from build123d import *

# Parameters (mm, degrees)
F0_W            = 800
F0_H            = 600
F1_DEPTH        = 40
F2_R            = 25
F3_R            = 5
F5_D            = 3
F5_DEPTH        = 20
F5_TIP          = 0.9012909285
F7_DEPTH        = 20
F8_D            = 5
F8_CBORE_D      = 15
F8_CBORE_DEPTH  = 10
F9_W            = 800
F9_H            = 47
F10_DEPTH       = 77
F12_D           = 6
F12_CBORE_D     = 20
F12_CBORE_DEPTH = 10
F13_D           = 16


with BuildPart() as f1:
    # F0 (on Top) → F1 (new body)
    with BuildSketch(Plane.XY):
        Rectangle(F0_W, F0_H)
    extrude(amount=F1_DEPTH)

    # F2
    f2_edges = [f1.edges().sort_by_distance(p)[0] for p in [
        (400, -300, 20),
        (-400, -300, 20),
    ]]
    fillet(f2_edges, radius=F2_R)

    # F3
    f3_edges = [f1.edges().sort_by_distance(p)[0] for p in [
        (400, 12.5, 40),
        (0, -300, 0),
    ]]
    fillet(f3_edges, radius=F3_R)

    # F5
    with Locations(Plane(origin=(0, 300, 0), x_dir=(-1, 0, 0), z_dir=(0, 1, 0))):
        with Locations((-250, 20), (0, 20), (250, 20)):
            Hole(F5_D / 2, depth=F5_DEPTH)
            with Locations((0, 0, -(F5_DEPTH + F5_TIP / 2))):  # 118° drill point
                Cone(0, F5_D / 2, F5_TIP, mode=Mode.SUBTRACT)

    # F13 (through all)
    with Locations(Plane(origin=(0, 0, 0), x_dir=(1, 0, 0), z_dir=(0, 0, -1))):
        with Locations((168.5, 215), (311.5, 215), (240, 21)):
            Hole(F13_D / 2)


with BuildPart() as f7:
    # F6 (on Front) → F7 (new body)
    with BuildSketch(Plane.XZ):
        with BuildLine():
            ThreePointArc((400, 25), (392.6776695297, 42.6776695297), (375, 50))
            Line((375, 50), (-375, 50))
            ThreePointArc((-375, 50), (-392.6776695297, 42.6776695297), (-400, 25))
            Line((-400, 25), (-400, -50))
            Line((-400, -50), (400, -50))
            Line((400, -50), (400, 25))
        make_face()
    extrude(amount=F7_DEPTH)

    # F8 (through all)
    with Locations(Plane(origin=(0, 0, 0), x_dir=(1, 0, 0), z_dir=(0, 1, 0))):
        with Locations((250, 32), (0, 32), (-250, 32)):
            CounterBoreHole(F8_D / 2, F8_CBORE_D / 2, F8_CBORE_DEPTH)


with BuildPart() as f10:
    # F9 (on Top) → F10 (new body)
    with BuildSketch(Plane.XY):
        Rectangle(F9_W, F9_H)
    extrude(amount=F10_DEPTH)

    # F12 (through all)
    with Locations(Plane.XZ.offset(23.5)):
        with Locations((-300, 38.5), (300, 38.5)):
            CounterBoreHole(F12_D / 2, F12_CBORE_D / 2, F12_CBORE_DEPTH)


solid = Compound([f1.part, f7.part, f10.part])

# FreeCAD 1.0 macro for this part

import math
import FreeCAD as App
import Part
import Sketcher


def edges_at(feature, points):
    """Names of the edges that pass closest to the given points."""
    edges = feature.Shape.Edges
    near = lambda p: min(range(len(edges)), key=lambda i: edges[i].distToShape(Part.Vertex(*p))[0])
    return sorted({f"Edge{near(p) + 1}" for p in points})


def add_polygon(sketch, points):
    """Adds a closed chain of lines whose ends are joined by coincident constraints."""
    first, n = sketch.GeometryCount, len(points)
    for a, b in zip(points, points[1:] + points[:1]):
        sketch.addGeometry(Part.LineSegment(App.Vector(*a, 0), App.Vector(*b, 0)), False)
    for i in range(n):
        sketch.addConstraint(Sketcher.Constraint("Coincident", first + i, 2, first + (i + 1) % n, 1))

doc = App.newDocument("Part")
params = doc.addObject("Spreadsheet::Sheet", "Params")
for row, (alias, value) in enumerate([
    ("sketch1_width", "800 mm"),
    ("sketch1_height", "600 mm"),
    ("pad1_length", "40 mm"),
    ("fillet_radius", "25 mm"),
    ("fillet2_radius", "5 mm"),
    ("sketch2_diameter", "3 mm"),
    ("hole_diameter", "3 mm"),
    ("hole_depth", "20 mm"),
    ("sketch3_diameter", "16 mm"),
    ("hole2_diameter", "16 mm"),
    ("sketch4_radius", "25 mm"),
    ("sketch4_width", "750 mm"),
    ("sketch4_height", "75 mm"),
    ("pad2_length", "20 mm"),
    ("sketch5_diameter", "5 mm"),
    ("hole3_diameter", "5 mm"),
    ("hole3_cbore_diameter", "15 mm"),
    ("hole3_cbore_depth", "10 mm"),
    ("sketch6_width", "800 mm"),
    ("sketch6_height", "47 mm"),
    ("pad3_length", "77 mm"),
    ("sketch7_diameter", "6 mm"),
    ("hole4_diameter", "6 mm"),
    ("hole4_cbore_diameter", "20 mm"),
    ("hole4_cbore_depth", "10 mm"),
], start=1):
    params.set(f"A{row}", alias)
    params.set(f"B{row}", "=" + value)
    params.setAlias(f"B{row}", alias)

body = doc.addObject("PartDesign::Body", "Body")

# Sketch on XY plane
sketch1 = body.newObject("Sketcher::SketchObject", "Sketch")
sketch1.AttachmentSupport = (doc.getObject("XY_Plane"), [""])
sketch1.MapMode = "FlatFace"
add_polygon(sketch1, [(-400, 300), (-400, -300), (400, -300), (400, 300)])  # lines 0-3
sketch1.addConstraint(Sketcher.Constraint("Vertical", 0))
sketch1.addConstraint(Sketcher.Constraint("Horizontal", 1))
sketch1.addConstraint(Sketcher.Constraint("Vertical", 2))
sketch1.addConstraint(Sketcher.Constraint("Horizontal", 3))
sketch1.addConstraint(Sketcher.Constraint("Symmetric", 0, 2, 2, 2, -1, 1))
sketch1.addConstraint(Sketcher.Constraint("DistanceX", 1, 1, 1, 2, 800.0))
sketch1.addConstraint(Sketcher.Constraint("DistanceY", 0, 2, 0, 1, 600.0))
sketch1.setExpression("Constraints[9]", "Params.sketch1_width")
sketch1.setExpression("Constraints[10]", "Params.sketch1_height")
pad1 = body.newObject("PartDesign::Pad", "Pad")
pad1.Profile = sketch1
pad1.setExpression("Length", "Params.pad1_length")
doc.recompute()

fillet = body.newObject("PartDesign::Fillet", "Fillet")
fillet.Base = (pad1, edges_at(pad1, [(400, -300, 20), (-400, -300, 20)]))
fillet.setExpression("Radius", "Params.fillet_radius")
doc.recompute()

fillet2 = body.newObject("PartDesign::Fillet", "Fillet001")
fillet2.Base = (fillet, edges_at(fillet, [(400, 12.5, 40), (0, -300, 0)]))
fillet2.setExpression("Radius", "Params.fillet2_radius")

# Sketch on XZ plane
sketch2 = body.newObject("Sketcher::SketchObject", "Sketch001")
sketch2.AttachmentSupport = (doc.getObject("XZ_Plane"), [""])
sketch2.MapMode = "FlatFace"
sketch2.AttachmentOffset = App.Placement(App.Vector(0, 0, -300), App.Rotation())
sketch2.addGeometry(Part.Circle(App.Vector(250, 20, 0), App.Vector(0, 0, 1), 1.5), False)
sketch2.addGeometry(Part.Circle(App.Vector(0, 20, 0), App.Vector(0, 0, 1), 1.5), False)
sketch2.addGeometry(Part.Circle(App.Vector(-250, 20, 0), App.Vector(0, 0, 1), 1.5), False)
sketch2.addConstraint(Sketcher.Constraint("Equal", 0, 1))
sketch2.addConstraint(Sketcher.Constraint("Equal", 1, 2))
sketch2.addConstraint(Sketcher.Constraint("Symmetric", 0, 3, 2, 3, -2))
sketch2.addConstraint(Sketcher.Constraint("PointOnObject", 1, 3, -2))
sketch2.addConstraint(Sketcher.Constraint("Horizontal", 0, 3, 1, 3))
sketch2.addConstraint(Sketcher.Constraint("Diameter", 0, 3.0))
sketch2.addConstraint(Sketcher.Constraint("DistanceX", -1, 1, 0, 3, 250.0))
sketch2.addConstraint(Sketcher.Constraint("DistanceY", -1, 1, 0, 3, 20.0))
sketch2.setExpression("Constraints[5]", "Params.sketch2_diameter")
doc.recompute()
hole = body.newObject("PartDesign::Hole", "Hole")
hole.Profile = sketch2
hole.ThreadType = "None"
hole.setExpression("Diameter", "Params.hole_diameter")
hole.DepthType = "Dimension"
hole.setExpression("Depth", "Params.hole_depth")
hole.DrillPoint = "Angled"
hole.DrillPointAngle = 118
hole.Reversed = True

# Sketch on XY plane
sketch3 = body.newObject("Sketcher::SketchObject", "Sketch002")
sketch3.AttachmentSupport = (doc.getObject("XY_Plane"), [""])
sketch3.MapMode = "FlatFace"
sketch3.addGeometry(Part.Circle(App.Vector(168, -215, 0), App.Vector(0, 0, 1), 8), False)
sketch3.addGeometry(Part.Circle(App.Vector(312, -215, 0), App.Vector(0, 0, 1), 8), False)
sketch3.addGeometry(Part.Circle(App.Vector(240, -21, 0), App.Vector(0, 0, 1), 8), False)
sketch3.addConstraint(Sketcher.Constraint("Equal", 0, 1))
sketch3.addConstraint(Sketcher.Constraint("Equal", 1, 2))
sketch3.addConstraint(Sketcher.Constraint("Horizontal", 0, 3, 1, 3))
sketch3.addConstraint(Sketcher.Constraint("Diameter", 0, 16.0))
sketch3.addConstraint(Sketcher.Constraint("DistanceY", 0, 3, -1, 1, 215.0))
sketch3.addConstraint(Sketcher.Constraint("DistanceX", -1, 1, 2, 3, 240.0))
sketch3.addConstraint(Sketcher.Constraint("DistanceY", 2, 3, -1, 1, 21.0))
sketch3.addConstraint(Sketcher.Constraint("DistanceX", 0, 3, 1, 3, 143.0))
sketch3.addConstraint(Sketcher.Constraint("DistanceX", -1, 1, 0, 3, 168.5))
sketch3.setExpression("Constraints[3]", "Params.sketch3_diameter")
doc.recompute()
hole2 = body.newObject("PartDesign::Hole", "Hole001")
hole2.Profile = sketch3
hole2.ThreadType = "None"
hole2.setExpression("Diameter", "Params.hole2_diameter")
hole2.DepthType = "ThroughAll"
hole2.Reversed = True
body2 = doc.addObject("PartDesign::Body", "Body001")

# Sketch on XZ plane
sketch4 = body2.newObject("Sketcher::SketchObject", "Sketch003")
sketch4.AttachmentSupport = (doc.getObject("XZ_Plane001"), [""])
sketch4.MapMode = "FlatFace"
sketch4.addGeometry(Part.ArcOfCircle(Part.Circle(App.Vector(375, 25, 0), App.Vector(0, 0, 1), 25), math.radians(0), math.radians(90)), False)
sketch4.addGeometry(Part.LineSegment(App.Vector(375, 50, 0), App.Vector(-375, 50, 0)), False)
sketch4.addGeometry(Part.ArcOfCircle(Part.Circle(App.Vector(-375, 25, 0), App.Vector(0, 0, 1), 25), math.radians(90), math.radians(180)), False)
sketch4.addGeometry(Part.LineSegment(App.Vector(-400, 25, 0), App.Vector(-400, -50, 0)), False)
sketch4.addGeometry(Part.LineSegment(App.Vector(-400, -50, 0), App.Vector(400, -50, 0)), False)
sketch4.addGeometry(Part.LineSegment(App.Vector(400, -50, 0), App.Vector(400, 25, 0)), False)
sketch4.addConstraint(Sketcher.Constraint("Tangent", 0, 2, 1, 1))
sketch4.addConstraint(Sketcher.Constraint("Tangent", 1, 2, 2, 1))
sketch4.addConstraint(Sketcher.Constraint("Tangent", 2, 2, 3, 1))
sketch4.addConstraint(Sketcher.Constraint("Coincident", 3, 2, 4, 1))
sketch4.addConstraint(Sketcher.Constraint("Coincident", 4, 2, 5, 1))
sketch4.addConstraint(Sketcher.Constraint("Tangent", 5, 2, 0, 1))
sketch4.addConstraint(Sketcher.Constraint("Horizontal", 1))
sketch4.addConstraint(Sketcher.Constraint("Vertical", 3))
sketch4.addConstraint(Sketcher.Constraint("Horizontal", 4))
sketch4.addConstraint(Sketcher.Constraint("Vertical", 5))
sketch4.addConstraint(Sketcher.Constraint("Equal", 0, 2))
sketch4.addConstraint(Sketcher.Constraint("Radius", 0, 25.0))
sketch4.addConstraint(Sketcher.Constraint("DistanceX", 1, 2, 1, 1, 750.0))
sketch4.addConstraint(Sketcher.Constraint("DistanceY", 3, 2, 3, 1, 75.0))
sketch4.addConstraint(Sketcher.Constraint("DistanceX", -1, 1, 0, 3, 375.0))
sketch4.addConstraint(Sketcher.Constraint("DistanceY", -1, 1, 0, 3, 25.0))
sketch4.setExpression("Constraints[11]", "Params.sketch4_radius")
sketch4.setExpression("Constraints[12]", "Params.sketch4_width")
sketch4.setExpression("Constraints[13]", "Params.sketch4_height")
pad2 = body2.newObject("PartDesign::Pad", "Pad001")
pad2.Profile = sketch4
pad2.setExpression("Length", "Params.pad2_length")

# Sketch on XZ plane
sketch5 = body2.newObject("Sketcher::SketchObject", "Sketch004")
sketch5.AttachmentSupport = (doc.getObject("XZ_Plane001"), [""])
sketch5.MapMode = "FlatFace"
sketch5.addGeometry(Part.Circle(App.Vector(250, -32, 0), App.Vector(0, 0, 1), 2.5), False)
sketch5.addGeometry(Part.Circle(App.Vector(0, -32, 0), App.Vector(0, 0, 1), 2.5), False)
sketch5.addGeometry(Part.Circle(App.Vector(-250, -32, 0), App.Vector(0, 0, 1), 2.5), False)
sketch5.addConstraint(Sketcher.Constraint("Equal", 0, 1))
sketch5.addConstraint(Sketcher.Constraint("Equal", 1, 2))
sketch5.addConstraint(Sketcher.Constraint("Symmetric", 0, 3, 2, 3, -2))
sketch5.addConstraint(Sketcher.Constraint("PointOnObject", 1, 3, -2))
sketch5.addConstraint(Sketcher.Constraint("Horizontal", 0, 3, 1, 3))
sketch5.addConstraint(Sketcher.Constraint("Diameter", 0, 5.0))
sketch5.addConstraint(Sketcher.Constraint("DistanceX", -1, 1, 0, 3, 250.0))
sketch5.addConstraint(Sketcher.Constraint("DistanceY", 0, 3, -1, 1, 32.0))
sketch5.setExpression("Constraints[5]", "Params.sketch5_diameter")
doc.recompute()
hole3 = body2.newObject("PartDesign::Hole", "Hole002")
hole3.Profile = sketch5
hole3.ThreadType = "None"
hole3.setExpression("Diameter", "Params.hole3_diameter")
hole3.DepthType = "ThroughAll"
hole3.HoleCutType = "Counterbore"
hole3.setExpression("HoleCutDiameter", "Params.hole3_cbore_diameter")
hole3.setExpression("HoleCutDepth", "Params.hole3_cbore_depth")
hole3.Reversed = True
body3 = doc.addObject("PartDesign::Body", "Body002")

# Sketch on XY plane
sketch6 = body3.newObject("Sketcher::SketchObject", "Sketch005")
sketch6.AttachmentSupport = (doc.getObject("XY_Plane002"), [""])
sketch6.MapMode = "FlatFace"
add_polygon(sketch6, [(-400, 24), (-400, -24), (400, -24), (400, 24)])  # lines 0-3
sketch6.addConstraint(Sketcher.Constraint("Vertical", 0))
sketch6.addConstraint(Sketcher.Constraint("Horizontal", 1))
sketch6.addConstraint(Sketcher.Constraint("Vertical", 2))
sketch6.addConstraint(Sketcher.Constraint("Horizontal", 3))
sketch6.addConstraint(Sketcher.Constraint("Symmetric", 0, 2, 2, 2, -1, 1))
sketch6.addConstraint(Sketcher.Constraint("DistanceX", 1, 1, 1, 2, 800.0))
sketch6.addConstraint(Sketcher.Constraint("DistanceY", 0, 2, 0, 1, 47.0))
sketch6.setExpression("Constraints[9]", "Params.sketch6_width")
sketch6.setExpression("Constraints[10]", "Params.sketch6_height")
pad3 = body3.newObject("PartDesign::Pad", "Pad002")
pad3.Profile = sketch6
pad3.setExpression("Length", "Params.pad3_length")

# Sketch on XZ plane
sketch7 = body3.newObject("Sketcher::SketchObject", "Sketch006")
sketch7.AttachmentSupport = (doc.getObject("XZ_Plane002"), [""])
sketch7.MapMode = "FlatFace"
sketch7.AttachmentOffset = App.Placement(App.Vector(0, 0, 23.5), App.Rotation())
sketch7.addGeometry(Part.Circle(App.Vector(-300, 38.5, 0), App.Vector(0, 0, 1), 3), False)
sketch7.addGeometry(Part.Circle(App.Vector(300, 38.5, 0), App.Vector(0, 0, 1), 3), False)
sketch7.addConstraint(Sketcher.Constraint("Equal", 0, 1))
sketch7.addConstraint(Sketcher.Constraint("Symmetric", 0, 3, 1, 3, -2))
sketch7.addConstraint(Sketcher.Constraint("Diameter", 0, 6.0))
sketch7.addConstraint(Sketcher.Constraint("DistanceX", 0, 3, -1, 1, 300.0))
sketch7.addConstraint(Sketcher.Constraint("DistanceY", -1, 1, 0, 3, 38.5))
sketch7.setExpression("Constraints[2]", "Params.sketch7_diameter")
doc.recompute()
hole4 = body3.newObject("PartDesign::Hole", "Hole003")
hole4.Profile = sketch7
hole4.ThreadType = "None"
hole4.setExpression("Diameter", "Params.hole4_diameter")
hole4.DepthType = "ThroughAll"
hole4.HoleCutType = "Counterbore"
hole4.setExpression("HoleCutDiameter", "Params.hole4_cbore_diameter")
hole4.setExpression("HoleCutDepth", "Params.hole4_cbore_depth")

doc.recompute()
